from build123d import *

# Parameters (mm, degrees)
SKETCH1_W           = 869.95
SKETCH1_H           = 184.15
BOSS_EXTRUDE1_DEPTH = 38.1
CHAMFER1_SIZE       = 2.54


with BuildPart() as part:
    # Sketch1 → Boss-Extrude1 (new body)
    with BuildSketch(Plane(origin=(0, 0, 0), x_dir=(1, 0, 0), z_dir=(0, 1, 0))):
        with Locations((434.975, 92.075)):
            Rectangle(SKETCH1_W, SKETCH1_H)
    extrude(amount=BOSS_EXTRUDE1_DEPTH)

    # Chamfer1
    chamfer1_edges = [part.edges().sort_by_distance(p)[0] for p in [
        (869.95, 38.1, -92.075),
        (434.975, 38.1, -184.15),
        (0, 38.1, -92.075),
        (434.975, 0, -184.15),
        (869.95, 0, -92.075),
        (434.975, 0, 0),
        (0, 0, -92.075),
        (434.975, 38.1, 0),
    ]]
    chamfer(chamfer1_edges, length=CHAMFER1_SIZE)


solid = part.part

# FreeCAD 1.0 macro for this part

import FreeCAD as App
import Part
import Sketcher

V = App.Vector
Q = App.Units.Quantity


def edges_at(feature, points):
    """Names of the edges that pass closest to the given points."""
    edges = feature.Shape.Edges
    near = lambda p: min(range(len(edges)), key=lambda i: edges[i].distToShape(Part.Vertex(*p))[0])
    return sorted({f"Edge{near(p) + 1}" for p in points})


def add_polygon(sketch, points):
    """Adds a closed chain of lines whose ends are joined by coincident constraints."""
    first, n = sketch.GeometryCount, len(points)
    for a, b in zip(points, points[1:] + points[:1]):
        sketch.addGeometry(Part.LineSegment(App.Vector(*a, 0), App.Vector(*b, 0)), False)
    for i in range(n):
        sketch.addConstraint(Sketcher.Constraint("Coincident", first + i, 2, first + (i + 1) % n, 1))

doc = App.newDocument("Part")
body = doc.addObject("PartDesign::Body", "Body")

# Sketch on XZ plane
sketch1 = body.newObject("Sketcher::SketchObject", "Sketch")
sketch1.AttachmentSupport = (doc.getObject("XZ_Plane"), [""])
sketch1.MapMode = "FlatFace"
add_polygon(sketch1, [(0, -184.15), (0, 0), (869.95, 0), (869.95, -184.15)])  # lines 0-3
sketch1.addConstraint([
    Sketcher.Constraint("Vertical", 0),
    Sketcher.Constraint("Horizontal", 1),
    Sketcher.Constraint("Vertical", 2),
    Sketcher.Constraint("Horizontal", 3),
    Sketcher.Constraint("Coincident", 0, 2, -1, 1),
    Sketcher.Constraint("DistanceX", 1, 1, 1, 2, Q("34.25 in")),
    Sketcher.Constraint("DistanceY", 0, 1, 0, 2, Q("7.25 in")),
])
pad1 = body.newObject("PartDesign::Pad", "Pad")
pad1.Profile = sketch1
pad1.Length = Q("1.5 in")
pad1.Reversed = True
doc.recompute()

chamfer = body.newObject("PartDesign::Chamfer", "Chamfer")
chamfer.Base = (pad1, edges_at(pad1, [
    (869.95, 38.1, -92.075),
    (434.975, 38.1, -184.15),
    (0, 38.1, -92.075),
    (434.975, 0, -184.15),
    (869.95, 0, -92.075),
    (434.975, 0, 0),
    (0, 0, -92.075),
    (434.975, 38.1, 0),
]))
chamfer.Size = Q("0.1 in")

doc.recompute()
